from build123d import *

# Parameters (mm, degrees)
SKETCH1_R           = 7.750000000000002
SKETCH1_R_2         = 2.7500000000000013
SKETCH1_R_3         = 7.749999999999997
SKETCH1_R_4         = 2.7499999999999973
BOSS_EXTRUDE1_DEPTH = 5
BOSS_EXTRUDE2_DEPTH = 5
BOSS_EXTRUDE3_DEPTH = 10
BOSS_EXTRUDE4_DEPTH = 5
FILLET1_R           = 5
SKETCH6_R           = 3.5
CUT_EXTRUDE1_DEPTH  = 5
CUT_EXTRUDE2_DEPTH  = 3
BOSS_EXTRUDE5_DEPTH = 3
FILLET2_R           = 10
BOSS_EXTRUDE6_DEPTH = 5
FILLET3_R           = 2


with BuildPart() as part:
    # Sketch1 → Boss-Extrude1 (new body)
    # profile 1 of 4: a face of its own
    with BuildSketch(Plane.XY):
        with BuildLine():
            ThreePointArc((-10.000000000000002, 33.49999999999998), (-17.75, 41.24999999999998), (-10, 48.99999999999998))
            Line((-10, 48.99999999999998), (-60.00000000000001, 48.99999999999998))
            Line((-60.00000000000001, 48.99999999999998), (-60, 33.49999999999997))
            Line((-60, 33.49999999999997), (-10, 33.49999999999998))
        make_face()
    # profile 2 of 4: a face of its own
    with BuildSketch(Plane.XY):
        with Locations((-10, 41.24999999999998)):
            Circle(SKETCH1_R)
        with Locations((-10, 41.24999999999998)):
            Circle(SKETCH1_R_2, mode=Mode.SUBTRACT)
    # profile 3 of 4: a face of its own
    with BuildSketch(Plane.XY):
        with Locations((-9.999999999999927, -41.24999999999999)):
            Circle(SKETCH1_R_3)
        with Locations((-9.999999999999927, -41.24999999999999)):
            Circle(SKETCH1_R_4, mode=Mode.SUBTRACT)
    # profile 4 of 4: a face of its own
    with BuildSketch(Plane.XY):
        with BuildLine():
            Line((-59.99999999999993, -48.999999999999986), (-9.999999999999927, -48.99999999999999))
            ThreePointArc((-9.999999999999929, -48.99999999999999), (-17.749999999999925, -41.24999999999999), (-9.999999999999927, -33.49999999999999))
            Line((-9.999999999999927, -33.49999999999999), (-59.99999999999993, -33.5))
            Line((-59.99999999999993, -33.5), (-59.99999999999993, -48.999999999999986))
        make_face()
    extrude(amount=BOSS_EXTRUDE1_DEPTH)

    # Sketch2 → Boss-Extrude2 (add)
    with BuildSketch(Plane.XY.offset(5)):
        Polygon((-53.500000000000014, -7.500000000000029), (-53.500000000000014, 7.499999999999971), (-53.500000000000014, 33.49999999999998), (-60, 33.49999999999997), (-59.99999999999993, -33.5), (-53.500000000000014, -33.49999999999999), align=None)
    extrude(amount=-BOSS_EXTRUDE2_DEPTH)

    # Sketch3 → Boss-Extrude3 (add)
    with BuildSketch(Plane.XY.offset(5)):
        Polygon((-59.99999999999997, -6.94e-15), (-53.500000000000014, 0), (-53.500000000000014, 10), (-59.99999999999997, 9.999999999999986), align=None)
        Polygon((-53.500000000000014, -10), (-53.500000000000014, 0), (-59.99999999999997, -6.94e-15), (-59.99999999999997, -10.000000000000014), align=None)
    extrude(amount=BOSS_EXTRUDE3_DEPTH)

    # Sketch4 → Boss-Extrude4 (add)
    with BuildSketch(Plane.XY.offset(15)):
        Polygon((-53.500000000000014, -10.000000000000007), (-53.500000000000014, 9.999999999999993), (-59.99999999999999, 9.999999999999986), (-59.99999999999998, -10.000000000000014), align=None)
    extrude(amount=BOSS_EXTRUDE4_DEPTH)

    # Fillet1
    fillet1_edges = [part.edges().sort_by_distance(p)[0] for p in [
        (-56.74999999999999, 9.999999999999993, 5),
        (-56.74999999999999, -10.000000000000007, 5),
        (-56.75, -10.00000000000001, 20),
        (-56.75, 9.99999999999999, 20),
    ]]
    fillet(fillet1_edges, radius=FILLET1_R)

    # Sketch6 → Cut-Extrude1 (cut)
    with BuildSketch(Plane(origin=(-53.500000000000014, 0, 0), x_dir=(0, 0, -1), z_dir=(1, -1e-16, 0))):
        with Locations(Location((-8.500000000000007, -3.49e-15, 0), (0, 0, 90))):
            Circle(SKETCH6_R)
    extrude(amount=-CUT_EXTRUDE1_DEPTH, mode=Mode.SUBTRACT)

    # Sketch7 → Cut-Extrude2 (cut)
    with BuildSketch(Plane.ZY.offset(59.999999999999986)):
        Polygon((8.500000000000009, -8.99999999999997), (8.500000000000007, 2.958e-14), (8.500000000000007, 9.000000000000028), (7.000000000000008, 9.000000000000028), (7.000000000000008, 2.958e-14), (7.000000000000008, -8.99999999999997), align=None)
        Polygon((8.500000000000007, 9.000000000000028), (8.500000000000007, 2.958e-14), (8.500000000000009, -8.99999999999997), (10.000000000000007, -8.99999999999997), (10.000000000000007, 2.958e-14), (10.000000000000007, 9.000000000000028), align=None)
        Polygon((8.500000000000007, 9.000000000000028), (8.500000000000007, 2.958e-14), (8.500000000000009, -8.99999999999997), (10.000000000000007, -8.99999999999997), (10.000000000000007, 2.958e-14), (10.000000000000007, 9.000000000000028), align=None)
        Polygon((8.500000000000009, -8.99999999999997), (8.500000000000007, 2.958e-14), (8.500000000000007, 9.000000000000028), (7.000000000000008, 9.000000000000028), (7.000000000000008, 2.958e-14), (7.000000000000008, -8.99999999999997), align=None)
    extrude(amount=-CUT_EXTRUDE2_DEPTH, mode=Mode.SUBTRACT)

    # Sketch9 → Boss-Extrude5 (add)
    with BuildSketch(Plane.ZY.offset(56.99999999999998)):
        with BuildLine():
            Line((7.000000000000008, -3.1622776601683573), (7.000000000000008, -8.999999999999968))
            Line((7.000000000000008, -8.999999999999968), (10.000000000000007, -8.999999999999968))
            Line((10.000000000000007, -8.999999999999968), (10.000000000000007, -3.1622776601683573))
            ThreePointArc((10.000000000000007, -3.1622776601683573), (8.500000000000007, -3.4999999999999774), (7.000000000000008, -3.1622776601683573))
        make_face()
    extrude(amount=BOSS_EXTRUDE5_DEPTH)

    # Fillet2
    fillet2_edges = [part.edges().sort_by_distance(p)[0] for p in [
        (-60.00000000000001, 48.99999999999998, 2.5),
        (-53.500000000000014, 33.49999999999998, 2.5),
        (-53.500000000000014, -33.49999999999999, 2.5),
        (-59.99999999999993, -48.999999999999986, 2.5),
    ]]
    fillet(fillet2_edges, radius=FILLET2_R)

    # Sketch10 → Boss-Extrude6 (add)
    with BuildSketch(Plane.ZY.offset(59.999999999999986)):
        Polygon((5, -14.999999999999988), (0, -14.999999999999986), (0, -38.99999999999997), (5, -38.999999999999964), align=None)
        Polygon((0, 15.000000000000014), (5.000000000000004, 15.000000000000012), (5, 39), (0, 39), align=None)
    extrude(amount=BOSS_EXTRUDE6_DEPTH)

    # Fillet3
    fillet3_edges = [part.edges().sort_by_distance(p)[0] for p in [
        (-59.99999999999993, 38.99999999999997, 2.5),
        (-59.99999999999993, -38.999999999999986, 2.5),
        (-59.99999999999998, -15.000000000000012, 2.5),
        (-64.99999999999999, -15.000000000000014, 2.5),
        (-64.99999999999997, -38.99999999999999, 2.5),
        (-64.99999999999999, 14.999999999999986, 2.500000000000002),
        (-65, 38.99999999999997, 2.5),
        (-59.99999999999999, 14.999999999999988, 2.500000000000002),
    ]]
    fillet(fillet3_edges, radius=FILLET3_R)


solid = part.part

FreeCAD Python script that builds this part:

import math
import FreeCAD as App
import Part
import Sketcher
Q = App.Units.Quantity


def edges_at(feature, points):
    """Names of the edges that pass closest to the given points."""
    edges = feature.Shape.Edges
    near = lambda p: min(range(len(edges)), key=lambda i: edges[i].distToShape(Part.Vertex(*p))[0])
    return sorted({f"Edge{near(p) + 1}" for p in points})

doc = App.newDocument("Part")
params = doc.addObject("Spreadsheet::Sheet", "Params")
for row, (alias, value) in enumerate([
    ("sketch1_diameter", "5.5 mm"),
    ("sketch1_width", "50 mm"),
    ("sketch1_radius", "7.75 mm"),
    ("pad1_length", "5 mm"),
    ("sketch2_height", "67 mm"),
    ("sketch2_width", "6.5 mm"),
    ("pad2_length", "5 mm"),
    ("sketch3_height", "20 mm"),
    ("sketch3_width", "6.5 mm"),
    ("pad3_length", "10 mm"),
    ("sketch4_height", "20 mm"),
    ("sketch4_width", "6.5 mm"),
    ("pad4_length", "5 mm"),
    ("fillet_radius", "5 mm"),
    ("sketch5_diameter", "7 mm"),
    ("pocket1_length", "5 mm"),
    ("sketch6_width", "18 mm"),
    ("sketch6_height", "3 mm"),
    ("pocket2_length", "3 mm"),
    ("sketch7_radius", "3.5 mm"),
    ("sketch7_height", "3 mm"),
    ("pad5_length", "3 mm"),
    ("fillet2_radius", "10 mm"),
    ("sketch8_width", "24 mm"),
    ("sketch8_height", "5 mm"),
    ("pad6_length", "5 mm"),
    ("fillet3_radius", "2 mm"),
], start=1):
    params.set(f"A{row}", alias)
    params.set(f"B{row}", "=" + value)
    params.setAlias(f"B{row}", alias)

body = doc.addObject("PartDesign::Body", "Body")
body.AllowCompound = True

# Sketch on XY plane
sketch1 = body.newObject("Sketcher::SketchObject", "Sketch")
sketch1.AttachmentSupport = (doc.getObject("XY_Plane"), [""])
sketch1.MapMode = "FlatFace"
sketch1.addGeometry([
    Part.LineSegment(App.Vector(-10, 49, 0), App.Vector(-60, 49, 0)),  # 0
    Part.LineSegment(App.Vector(-60, 49, 0), App.Vector(-60, 33.5, 0)),  # 1
    Part.LineSegment(App.Vector(-60, 33.5, 0), App.Vector(-10, 33.5, 0)),  # 2
    Part.ArcOfCircle(Part.Circle(App.Vector(-10, 41.2, 0), App.Vector(0, 0, 1), 7.8), math.radians(-90), math.radians(90)),  # 3
    Part.Circle(App.Vector(-10, 41.2, 0), App.Vector(0, 0, 1), 2.8),  # 4
    Part.LineSegment(App.Vector(-10, -33.5, 0), App.Vector(-60, -33.5, 0)),  # 5
    Part.LineSegment(App.Vector(-60, -33.5, 0), App.Vector(-60, -49, 0)),  # 6
    Part.LineSegment(App.Vector(-60, -49, 0), App.Vector(-10, -49, 0)),  # 7
    Part.ArcOfCircle(Part.Circle(App.Vector(-10, -41.2, 0), App.Vector(0, 0, 1), 7.8), math.radians(-90), math.radians(90)),  # 8
    Part.Circle(App.Vector(-10, -41.2, 0), App.Vector(0, 0, 1), 2.8),  # 9
], False)
sketch1.addConstraint([
    Sketcher.Constraint("Coincident", 0, 2, 1, 1),
    Sketcher.Constraint("Coincident", 1, 2, 2, 1),
    Sketcher.Constraint("Tangent", 2, 2, 3, 1),
    Sketcher.Constraint("Tangent", 3, 2, 0, 1),
    Sketcher.Constraint("Coincident", 5, 2, 6, 1),
    Sketcher.Constraint("Coincident", 6, 2, 7, 1),
    Sketcher.Constraint("Tangent", 7, 2, 8, 1),
    Sketcher.Constraint("Tangent", 8, 2, 5, 1),
    Sketcher.Constraint("Horizontal", 0),
    Sketcher.Constraint("Vertical", 1),
    Sketcher.Constraint("Horizontal", 2),
    Sketcher.Constraint("Horizontal", 5),
    Sketcher.Constraint("Vertical", 6),
    Sketcher.Constraint("Horizontal", 7),
    Sketcher.Constraint("Coincident", 4, 3, 3, 3),
    Sketcher.Constraint("Coincident", 9, 3, 8, 3),
    Sketcher.Constraint("Equal", 3, 8),
    Sketcher.Constraint("Equal", 4, 9),
    Sketcher.Constraint("Symmetric", 3, 3, 8, 3, -1),
    Sketcher.Constraint("Vertical", 1, 2, 5, 2),
    Sketcher.Constraint("Diameter", 4, Q("5.5 mm")),
    Sketcher.Constraint("DistanceX", 0, 2, 0, 1, Q("50 mm")),
    Sketcher.Constraint("Radius", 3, Q("7.75 mm")),
    Sketcher.Constraint("DistanceX", 3, 3, -1, 1, Q("10 mm")),
    Sketcher.Constraint("DistanceY", -1, 1, 0, 2, Q("49 mm")),
])
sketch1.setExpression("Constraints[20]", "Params.sketch1_diameter")
sketch1.setExpression("Constraints[21]", "Params.sketch1_width")
sketch1.setExpression("Constraints[22]", "Params.sketch1_radius")
pad1 = body.newObject("PartDesign::Pad", "Pad")
pad1.Profile = sketch1
pad1.setExpression("Length", "Params.pad1_length")

# Sketch on XY plane
sketch2 = body.newObject("Sketcher::SketchObject", "Sketch001")
sketch2.AttachmentSupport = (doc.getObject("XY_Plane"), [""])
sketch2.MapMode = "FlatFace"
sketch2.AttachmentOffset = App.Placement(App.Vector(0, 0, 5), App.Rotation())
sketch2.addGeometry([
    Part.LineSegment(App.Vector(-54, 34, 0), App.Vector(-60, 34, 0)),
    Part.LineSegment(App.Vector(-60, 34, 0), App.Vector(-60, -34, 0)),
    Part.LineSegment(App.Vector(-60, -34, 0), App.Vector(-54, -34, 0)),
    Part.LineSegment(App.Vector(-54, -34, 0), App.Vector(-54, 34, 0)),
], False)
sketch2.addConstraint([
    Sketcher.Constraint("Coincident", 0, 2, 1, 1),
    Sketcher.Constraint("Coincident", 1, 2, 2, 1),
    Sketcher.Constraint("Coincident", 2, 2, 3, 1),
    Sketcher.Constraint("Coincident", 3, 2, 0, 1),
    Sketcher.Constraint("Horizontal", 0),
    Sketcher.Constraint("Vertical", 1),
    Sketcher.Constraint("Horizontal", 2),
    Sketcher.Constraint("Vertical", 3),
    Sketcher.Constraint("DistanceY", 1, 2, 1, 1, Q("67 mm")),
    Sketcher.Constraint("DistanceX", 0, 2, 0, 1, Q("6.5 mm")),
    Sketcher.Constraint("DistanceX", 0, 2, -1, 1, Q("60 mm")),
    Sketcher.Constraint("DistanceY", -1, 1, 0, 2, Q("33.5 mm")),
])
sketch2.setExpression("Constraints[8]", "Params.sketch2_height")
sketch2.setExpression("Constraints[9]", "Params.sketch2_width")
pad2 = body.newObject("PartDesign::Pad", "Pad001")
pad2.Profile = sketch2
pad2.setExpression("Length", "Params.pad2_length")
pad2.Reversed = True

# Sketch on XY plane
sketch3 = body.newObject("Sketcher::SketchObject", "Sketch002")
sketch3.AttachmentSupport = (doc.getObject("XY_Plane"), [""])
sketch3.MapMode = "FlatFace"
sketch3.AttachmentOffset = App.Placement(App.Vector(0, 0, 5), App.Rotation())
sketch3.addGeometry([
    Part.LineSegment(App.Vector(-54, 10, 0), App.Vector(-60, 10, 0)),
    Part.LineSegment(App.Vector(-60, 10, 0), App.Vector(-60, -10, 0)),
    Part.LineSegment(App.Vector(-60, -10, 0), App.Vector(-54, -10, 0)),
    Part.LineSegment(App.Vector(-54, -10, 0), App.Vector(-54, 10, 0)),
], False)
sketch3.addConstraint([
    Sketcher.Constraint("Coincident", 0, 2, 1, 1),
    Sketcher.Constraint("Coincident", 1, 2, 2, 1),
    Sketcher.Constraint("Coincident", 2, 2, 3, 1),
    Sketcher.Constraint("Coincident", 3, 2, 0, 1),
    Sketcher.Constraint("Horizontal", 0),
    Sketcher.Constraint("Vertical", 1),
    Sketcher.Constraint("Horizontal", 2),
    Sketcher.Constraint("Vertical", 3),
    Sketcher.Constraint("DistanceY", 1, 2, 1, 1, Q("20 mm")),
    Sketcher.Constraint("DistanceX", 0, 2, 0, 1, Q("6.5 mm")),
    Sketcher.Constraint("DistanceX", 0, 2, -1, 1, Q("60 mm")),
    Sketcher.Constraint("DistanceY", -1, 1, 0, 2, Q("10 mm")),
])
sketch3.setExpression("Constraints[8]", "Params.sketch3_height")
sketch3.setExpression("Constraints[9]", "Params.sketch3_width")
pad3 = body.newObject("PartDesign::Pad", "Pad002")
pad3.Profile = sketch3
pad3.setExpression("Length", "Params.pad3_length")

# Sketch on XY plane
sketch4 = body.newObject("Sketcher::SketchObject", "Sketch003")
sketch4.AttachmentSupport = (doc.getObject("XY_Plane"), [""])
sketch4.MapMode = "FlatFace"
sketch4.AttachmentOffset = App.Placement(App.Vector(0, 0, 15), App.Rotation())
sketch4.addGeometry([
    Part.LineSegment(App.Vector(-54, -10, 0), App.Vector(-54, 10, 0)),
    Part.LineSegment(App.Vector(-54, 10, 0), App.Vector(-60, 10, 0)),
    Part.LineSegment(App.Vector(-60, 10, 0), App.Vector(-60, -10, 0)),
    Part.LineSegment(App.Vector(-60, -10, 0), App.Vector(-54, -10, 0)),
], False)
sketch4.addConstraint([
    Sketcher.Constraint("Coincident", 0, 2, 1, 1),
    Sketcher.Constraint("Coincident", 1, 2, 2, 1),
    Sketcher.Constraint("Coincident", 2, 2, 3, 1),
    Sketcher.Constraint("Coincident", 3, 2, 0, 1),
    Sketcher.Constraint("Vertical", 0),
    Sketcher.Constraint("Horizontal", 1),
    Sketcher.Constraint("Vertical", 2),
    Sketcher.Constraint("Horizontal", 3),
    Sketcher.Constraint("DistanceY", 0, 1, 0, 2, Q("20 mm")),
    Sketcher.Constraint("DistanceX", 1, 2, 1, 1, Q("6.5 mm")),
    Sketcher.Constraint("DistanceY", -1, 1, 0, 2, Q("10 mm")),
    Sketcher.Constraint("DistanceX", 1, 2, -1, 1, Q("60 mm")),
])
sketch4.setExpression("Constraints[8]", "Params.sketch4_height")
sketch4.setExpression("Constraints[9]", "Params.sketch4_width")
pad4 = body.newObject("PartDesign::Pad", "Pad003")
pad4.Profile = sketch4
pad4.setExpression("Length", "Params.pad4_length")
doc.recompute()

fillet = body.newObject("PartDesign::Fillet", "Fillet")
fillet.Base = (pad4, edges_at(pad4, [
    (-56.75, 10, 5),
    (-56.75, -10, 5),
    (-56.75, -10, 20),
    (-56.75, 10, 20),
]))
fillet.setExpression("Radius", "Params.fillet_radius")

# Sketch on YZ plane
sketch5 = body.newObject("Sketcher::SketchObject", "Sketch004")
sketch5.AttachmentSupport = (doc.getObject("YZ_Plane"), [""])
sketch5.MapMode = "FlatFace"
sketch5.AttachmentOffset = App.Placement(App.Vector(0, 0, -53.5), App.Rotation())
sketch5.addGeometry(Part.Circle(App.Vector(0, 8.5, 0), App.Vector(0, 0, 1), 3.5), False)
sketch5.addConstraint([
    Sketcher.Constraint("PointOnObject", 0, 3, -2),
    Sketcher.Constraint("Diameter", 0, Q("7 mm")),
    Sketcher.Constraint("DistanceY", -1, 1, 0, 3, Q("8.5 mm")),
])
sketch5.setExpression("Constraints[1]", "Params.sketch5_diameter")
pocket1 = body.newObject("PartDesign::Pocket", "Pocket")
pocket1.Profile = sketch5
pocket1.setExpression("Length", "Params.pocket1_length")

# Sketch on YZ plane
sketch6 = body.newObject("Sketcher::SketchObject", "Sketch005")
sketch6.AttachmentSupport = (doc.getObject("YZ_Plane"), [""])
sketch6.MapMode = "FlatFace"
sketch6.AttachmentOffset = App.Placement(App.Vector(0, 0, -60), App.Rotation())
sketch6.addGeometry([
    Part.LineSegment(App.Vector(9, 7, 0), App.Vector(-9, 7, 0)),
    Part.LineSegment(App.Vector(-9, 7, 0), App.Vector(-9, 10, 0)),
    Part.LineSegment(App.Vector(-9, 10, 0), App.Vector(9, 10, 0)),
    Part.LineSegment(App.Vector(9, 10, 0), App.Vector(9, 7, 0)),
], False)
sketch6.addConstraint([
    Sketcher.Constraint("Coincident", 0, 2, 1, 1),
    Sketcher.Constraint("Coincident", 1, 2, 2, 1),
    Sketcher.Constraint("Coincident", 2, 2, 3, 1),
    Sketcher.Constraint("Coincident", 3, 2, 0, 1),
    Sketcher.Constraint("Horizontal", 0),
    Sketcher.Constraint("Vertical", 1),
    Sketcher.Constraint("Horizontal", 2),
    Sketcher.Constraint("Vertical", 3),
    Sketcher.Constraint("DistanceX", 0, 2, 0, 1, Q("18 mm")),
    Sketcher.Constraint("DistanceY", 1, 1, 1, 2, Q("3 mm")),
    Sketcher.Constraint("DistanceX", 0, 2, -1, 1, Q("9 mm")),
    Sketcher.Constraint("DistanceY", -1, 1, 0, 2, Q("7 mm")),
])
sketch6.setExpression("Constraints[8]", "Params.sketch6_width")
sketch6.setExpression("Constraints[9]", "Params.sketch6_height")
pocket2 = body.newObject("PartDesign::Pocket", "Pocket001")
pocket2.Profile = sketch6
pocket2.setExpression("Length", "Params.pocket2_length")
pocket2.Reversed = True

# Sketch on YZ plane
sketch7 = body.newObject("Sketcher::SketchObject", "Sketch006")
sketch7.AttachmentSupport = (doc.getObject("YZ_Plane"), [""])
sketch7.MapMode = "FlatFace"
sketch7.AttachmentOffset = App.Placement(App.Vector(0, 0, -57), App.Rotation())
sketch7.addGeometry([
    Part.LineSegment(App.Vector(-3.2, 7, 0), App.Vector(-9, 7, 0)),
    Part.LineSegment(App.Vector(-9, 7, 0), App.Vector(-9, 10, 0)),
    Part.LineSegment(App.Vector(-9, 10, 0), App.Vector(-3.2, 10, 0)),
    Part.ArcOfCircle(Part.Circle(App.Vector(0, 8.5, 0), App.Vector(0, 0, 1), 3.5), math.radians(155), math.radians(205)),
], False)
sketch7.addConstraint([
    Sketcher.Constraint("Coincident", 0, 2, 1, 1),
    Sketcher.Constraint("Coincident", 1, 2, 2, 1),
    Sketcher.Constraint("Coincident", 2, 2, 3, 1),
    Sketcher.Constraint("Coincident", 3, 2, 0, 1),
    Sketcher.Constraint("Horizontal", 0),
    Sketcher.Constraint("Vertical", 1),
    Sketcher.Constraint("Horizontal", 2),
    Sketcher.Constraint("PointOnObject", 3, 3, -2),
    Sketcher.Constraint("Vertical", 2, 2, 3, 2),
    Sketcher.Constraint("Radius", 3, Q("3.5 mm")),
    Sketcher.Constraint("DistanceY", 1, 1, 1, 2, Q("3 mm")),
    Sketcher.Constraint("DistanceX", 0, 2, -1, 1, Q("9 mm")),
    Sketcher.Constraint("DistanceY", -1, 1, 0, 2, Q("7 mm")),
])
sketch7.setExpression("Constraints[9]", "Params.sketch7_radius")
sketch7.setExpression("Constraints[10]", "Params.sketch7_height")
pad5 = body.newObject("PartDesign::Pad", "Pad004")
pad5.Profile = sketch7
pad5.setExpression("Length", "Params.pad5_length")
pad5.Reversed = True
doc.recompute()

fillet2 = body.newObject("PartDesign::Fillet", "Fillet001")
fillet2.Base = (pad5, edges_at(pad5, [
    (-60, 49, 2.5),
    (-53.5, 33.5, 2.5),
    (-53.5, -33.5, 2.5),
    (-60, -49, 2.5),
]))
fillet2.setExpression("Radius", "Params.fillet2_radius")

# Sketch on YZ plane
sketch8 = body.newObject("Sketcher::SketchObject", "Sketch007")
sketch8.AttachmentSupport = (doc.getObject("YZ_Plane"), [""])
sketch8.MapMode = "FlatFace"
sketch8.AttachmentOffset = App.Placement(App.Vector(0, 0, -60), App.Rotation())
sketch8.addGeometry([
    Part.LineSegment(App.Vector(-15, 5, 0), App.Vector(-15, 0, 0)),  # 0
    Part.LineSegment(App.Vector(-15, 0, 0), App.Vector(-39, 0, 0)),  # 1
    Part.LineSegment(App.Vector(-39, 0, 0), App.Vector(-39, 5, 0)),  # 2
    Part.LineSegment(App.Vector(-39, 5, 0), App.Vector(-15, 5, 0)),  # 3
    Part.LineSegment(App.Vector(15, 0, 0), App.Vector(15, 5, 0)),  # 4
    Part.LineSegment(App.Vector(15, 5, 0), App.Vector(39, 5, 0)),  # 5
    Part.LineSegment(App.Vector(39, 5, 0), App.Vector(39, 0, 0)),  # 6
    Part.LineSegment(App.Vector(39, 0, 0), App.Vector(15, 0, 0)),  # 7
], False)
sketch8.addConstraint([
    Sketcher.Constraint("Coincident", 0, 2, 1, 1),
    Sketcher.Constraint("Coincident", 1, 2, 2, 1),
    Sketcher.Constraint("Coincident", 2, 2, 3, 1),
    Sketcher.Constraint("Coincident", 3, 2, 0, 1),
    Sketcher.Constraint("Coincident", 4, 2, 5, 1),
    Sketcher.Constraint("Coincident", 5, 2, 6, 1),
    Sketcher.Constraint("Coincident", 6, 2, 7, 1),
    Sketcher.Constraint("Coincident", 7, 2, 4, 1),
    Sketcher.Constraint("Vertical", 0),
    Sketcher.Constraint("Horizontal", 1),
    Sketcher.Constraint("Vertical", 2),
    Sketcher.Constraint("Horizontal", 3),
    Sketcher.Constraint("Vertical", 4),
    Sketcher.Constraint("Horizontal", 5),
    Sketcher.Constraint("Vertical", 6),
    Sketcher.Constraint("Horizontal", 7),
    Sketcher.Constraint("Symmetric", 1, 2, 6, 2, -1, 1),
    Sketcher.Constraint("Symmetric", 3, 2, 4, 2, -2),
    Sketcher.Constraint("PointOnObject", 0, 2, -1),
    Sketcher.Constraint("DistanceX", 1, 2, 1, 1, Q("24 mm")),
    Sketcher.Constraint("DistanceY", 0, 2, 0, 1, Q("5 mm")),
    Sketcher.Constraint("DistanceX", 0, 2, -1, 1, Q("15 mm")),
])
sketch8.setExpression("Constraints[19]", "Params.sketch8_width")
sketch8.setExpression("Constraints[20]", "Params.sketch8_height")
pad6 = body.newObject("PartDesign::Pad", "Pad005")
pad6.Profile = sketch8
pad6.setExpression("Length", "Params.pad6_length")
pad6.Reversed = True
doc.recompute()

fillet3 = body.newObject("PartDesign::Fillet", "Fillet002")
fillet3.Base = (pad6, edges_at(pad6, [
    (-60, 39, 2.5),
    (-60, -39, 2.5),
    (-60, -15, 2.5),
    (-65, -15, 2.5),
    (-65, -39, 2.5),
    (-65, 15, 2.5),
    (-65, 39, 2.5),
    (-60, 15, 2.5),
]))
fillet3.setExpression("Radius", "Params.fillet3_radius")

doc.recompute()
